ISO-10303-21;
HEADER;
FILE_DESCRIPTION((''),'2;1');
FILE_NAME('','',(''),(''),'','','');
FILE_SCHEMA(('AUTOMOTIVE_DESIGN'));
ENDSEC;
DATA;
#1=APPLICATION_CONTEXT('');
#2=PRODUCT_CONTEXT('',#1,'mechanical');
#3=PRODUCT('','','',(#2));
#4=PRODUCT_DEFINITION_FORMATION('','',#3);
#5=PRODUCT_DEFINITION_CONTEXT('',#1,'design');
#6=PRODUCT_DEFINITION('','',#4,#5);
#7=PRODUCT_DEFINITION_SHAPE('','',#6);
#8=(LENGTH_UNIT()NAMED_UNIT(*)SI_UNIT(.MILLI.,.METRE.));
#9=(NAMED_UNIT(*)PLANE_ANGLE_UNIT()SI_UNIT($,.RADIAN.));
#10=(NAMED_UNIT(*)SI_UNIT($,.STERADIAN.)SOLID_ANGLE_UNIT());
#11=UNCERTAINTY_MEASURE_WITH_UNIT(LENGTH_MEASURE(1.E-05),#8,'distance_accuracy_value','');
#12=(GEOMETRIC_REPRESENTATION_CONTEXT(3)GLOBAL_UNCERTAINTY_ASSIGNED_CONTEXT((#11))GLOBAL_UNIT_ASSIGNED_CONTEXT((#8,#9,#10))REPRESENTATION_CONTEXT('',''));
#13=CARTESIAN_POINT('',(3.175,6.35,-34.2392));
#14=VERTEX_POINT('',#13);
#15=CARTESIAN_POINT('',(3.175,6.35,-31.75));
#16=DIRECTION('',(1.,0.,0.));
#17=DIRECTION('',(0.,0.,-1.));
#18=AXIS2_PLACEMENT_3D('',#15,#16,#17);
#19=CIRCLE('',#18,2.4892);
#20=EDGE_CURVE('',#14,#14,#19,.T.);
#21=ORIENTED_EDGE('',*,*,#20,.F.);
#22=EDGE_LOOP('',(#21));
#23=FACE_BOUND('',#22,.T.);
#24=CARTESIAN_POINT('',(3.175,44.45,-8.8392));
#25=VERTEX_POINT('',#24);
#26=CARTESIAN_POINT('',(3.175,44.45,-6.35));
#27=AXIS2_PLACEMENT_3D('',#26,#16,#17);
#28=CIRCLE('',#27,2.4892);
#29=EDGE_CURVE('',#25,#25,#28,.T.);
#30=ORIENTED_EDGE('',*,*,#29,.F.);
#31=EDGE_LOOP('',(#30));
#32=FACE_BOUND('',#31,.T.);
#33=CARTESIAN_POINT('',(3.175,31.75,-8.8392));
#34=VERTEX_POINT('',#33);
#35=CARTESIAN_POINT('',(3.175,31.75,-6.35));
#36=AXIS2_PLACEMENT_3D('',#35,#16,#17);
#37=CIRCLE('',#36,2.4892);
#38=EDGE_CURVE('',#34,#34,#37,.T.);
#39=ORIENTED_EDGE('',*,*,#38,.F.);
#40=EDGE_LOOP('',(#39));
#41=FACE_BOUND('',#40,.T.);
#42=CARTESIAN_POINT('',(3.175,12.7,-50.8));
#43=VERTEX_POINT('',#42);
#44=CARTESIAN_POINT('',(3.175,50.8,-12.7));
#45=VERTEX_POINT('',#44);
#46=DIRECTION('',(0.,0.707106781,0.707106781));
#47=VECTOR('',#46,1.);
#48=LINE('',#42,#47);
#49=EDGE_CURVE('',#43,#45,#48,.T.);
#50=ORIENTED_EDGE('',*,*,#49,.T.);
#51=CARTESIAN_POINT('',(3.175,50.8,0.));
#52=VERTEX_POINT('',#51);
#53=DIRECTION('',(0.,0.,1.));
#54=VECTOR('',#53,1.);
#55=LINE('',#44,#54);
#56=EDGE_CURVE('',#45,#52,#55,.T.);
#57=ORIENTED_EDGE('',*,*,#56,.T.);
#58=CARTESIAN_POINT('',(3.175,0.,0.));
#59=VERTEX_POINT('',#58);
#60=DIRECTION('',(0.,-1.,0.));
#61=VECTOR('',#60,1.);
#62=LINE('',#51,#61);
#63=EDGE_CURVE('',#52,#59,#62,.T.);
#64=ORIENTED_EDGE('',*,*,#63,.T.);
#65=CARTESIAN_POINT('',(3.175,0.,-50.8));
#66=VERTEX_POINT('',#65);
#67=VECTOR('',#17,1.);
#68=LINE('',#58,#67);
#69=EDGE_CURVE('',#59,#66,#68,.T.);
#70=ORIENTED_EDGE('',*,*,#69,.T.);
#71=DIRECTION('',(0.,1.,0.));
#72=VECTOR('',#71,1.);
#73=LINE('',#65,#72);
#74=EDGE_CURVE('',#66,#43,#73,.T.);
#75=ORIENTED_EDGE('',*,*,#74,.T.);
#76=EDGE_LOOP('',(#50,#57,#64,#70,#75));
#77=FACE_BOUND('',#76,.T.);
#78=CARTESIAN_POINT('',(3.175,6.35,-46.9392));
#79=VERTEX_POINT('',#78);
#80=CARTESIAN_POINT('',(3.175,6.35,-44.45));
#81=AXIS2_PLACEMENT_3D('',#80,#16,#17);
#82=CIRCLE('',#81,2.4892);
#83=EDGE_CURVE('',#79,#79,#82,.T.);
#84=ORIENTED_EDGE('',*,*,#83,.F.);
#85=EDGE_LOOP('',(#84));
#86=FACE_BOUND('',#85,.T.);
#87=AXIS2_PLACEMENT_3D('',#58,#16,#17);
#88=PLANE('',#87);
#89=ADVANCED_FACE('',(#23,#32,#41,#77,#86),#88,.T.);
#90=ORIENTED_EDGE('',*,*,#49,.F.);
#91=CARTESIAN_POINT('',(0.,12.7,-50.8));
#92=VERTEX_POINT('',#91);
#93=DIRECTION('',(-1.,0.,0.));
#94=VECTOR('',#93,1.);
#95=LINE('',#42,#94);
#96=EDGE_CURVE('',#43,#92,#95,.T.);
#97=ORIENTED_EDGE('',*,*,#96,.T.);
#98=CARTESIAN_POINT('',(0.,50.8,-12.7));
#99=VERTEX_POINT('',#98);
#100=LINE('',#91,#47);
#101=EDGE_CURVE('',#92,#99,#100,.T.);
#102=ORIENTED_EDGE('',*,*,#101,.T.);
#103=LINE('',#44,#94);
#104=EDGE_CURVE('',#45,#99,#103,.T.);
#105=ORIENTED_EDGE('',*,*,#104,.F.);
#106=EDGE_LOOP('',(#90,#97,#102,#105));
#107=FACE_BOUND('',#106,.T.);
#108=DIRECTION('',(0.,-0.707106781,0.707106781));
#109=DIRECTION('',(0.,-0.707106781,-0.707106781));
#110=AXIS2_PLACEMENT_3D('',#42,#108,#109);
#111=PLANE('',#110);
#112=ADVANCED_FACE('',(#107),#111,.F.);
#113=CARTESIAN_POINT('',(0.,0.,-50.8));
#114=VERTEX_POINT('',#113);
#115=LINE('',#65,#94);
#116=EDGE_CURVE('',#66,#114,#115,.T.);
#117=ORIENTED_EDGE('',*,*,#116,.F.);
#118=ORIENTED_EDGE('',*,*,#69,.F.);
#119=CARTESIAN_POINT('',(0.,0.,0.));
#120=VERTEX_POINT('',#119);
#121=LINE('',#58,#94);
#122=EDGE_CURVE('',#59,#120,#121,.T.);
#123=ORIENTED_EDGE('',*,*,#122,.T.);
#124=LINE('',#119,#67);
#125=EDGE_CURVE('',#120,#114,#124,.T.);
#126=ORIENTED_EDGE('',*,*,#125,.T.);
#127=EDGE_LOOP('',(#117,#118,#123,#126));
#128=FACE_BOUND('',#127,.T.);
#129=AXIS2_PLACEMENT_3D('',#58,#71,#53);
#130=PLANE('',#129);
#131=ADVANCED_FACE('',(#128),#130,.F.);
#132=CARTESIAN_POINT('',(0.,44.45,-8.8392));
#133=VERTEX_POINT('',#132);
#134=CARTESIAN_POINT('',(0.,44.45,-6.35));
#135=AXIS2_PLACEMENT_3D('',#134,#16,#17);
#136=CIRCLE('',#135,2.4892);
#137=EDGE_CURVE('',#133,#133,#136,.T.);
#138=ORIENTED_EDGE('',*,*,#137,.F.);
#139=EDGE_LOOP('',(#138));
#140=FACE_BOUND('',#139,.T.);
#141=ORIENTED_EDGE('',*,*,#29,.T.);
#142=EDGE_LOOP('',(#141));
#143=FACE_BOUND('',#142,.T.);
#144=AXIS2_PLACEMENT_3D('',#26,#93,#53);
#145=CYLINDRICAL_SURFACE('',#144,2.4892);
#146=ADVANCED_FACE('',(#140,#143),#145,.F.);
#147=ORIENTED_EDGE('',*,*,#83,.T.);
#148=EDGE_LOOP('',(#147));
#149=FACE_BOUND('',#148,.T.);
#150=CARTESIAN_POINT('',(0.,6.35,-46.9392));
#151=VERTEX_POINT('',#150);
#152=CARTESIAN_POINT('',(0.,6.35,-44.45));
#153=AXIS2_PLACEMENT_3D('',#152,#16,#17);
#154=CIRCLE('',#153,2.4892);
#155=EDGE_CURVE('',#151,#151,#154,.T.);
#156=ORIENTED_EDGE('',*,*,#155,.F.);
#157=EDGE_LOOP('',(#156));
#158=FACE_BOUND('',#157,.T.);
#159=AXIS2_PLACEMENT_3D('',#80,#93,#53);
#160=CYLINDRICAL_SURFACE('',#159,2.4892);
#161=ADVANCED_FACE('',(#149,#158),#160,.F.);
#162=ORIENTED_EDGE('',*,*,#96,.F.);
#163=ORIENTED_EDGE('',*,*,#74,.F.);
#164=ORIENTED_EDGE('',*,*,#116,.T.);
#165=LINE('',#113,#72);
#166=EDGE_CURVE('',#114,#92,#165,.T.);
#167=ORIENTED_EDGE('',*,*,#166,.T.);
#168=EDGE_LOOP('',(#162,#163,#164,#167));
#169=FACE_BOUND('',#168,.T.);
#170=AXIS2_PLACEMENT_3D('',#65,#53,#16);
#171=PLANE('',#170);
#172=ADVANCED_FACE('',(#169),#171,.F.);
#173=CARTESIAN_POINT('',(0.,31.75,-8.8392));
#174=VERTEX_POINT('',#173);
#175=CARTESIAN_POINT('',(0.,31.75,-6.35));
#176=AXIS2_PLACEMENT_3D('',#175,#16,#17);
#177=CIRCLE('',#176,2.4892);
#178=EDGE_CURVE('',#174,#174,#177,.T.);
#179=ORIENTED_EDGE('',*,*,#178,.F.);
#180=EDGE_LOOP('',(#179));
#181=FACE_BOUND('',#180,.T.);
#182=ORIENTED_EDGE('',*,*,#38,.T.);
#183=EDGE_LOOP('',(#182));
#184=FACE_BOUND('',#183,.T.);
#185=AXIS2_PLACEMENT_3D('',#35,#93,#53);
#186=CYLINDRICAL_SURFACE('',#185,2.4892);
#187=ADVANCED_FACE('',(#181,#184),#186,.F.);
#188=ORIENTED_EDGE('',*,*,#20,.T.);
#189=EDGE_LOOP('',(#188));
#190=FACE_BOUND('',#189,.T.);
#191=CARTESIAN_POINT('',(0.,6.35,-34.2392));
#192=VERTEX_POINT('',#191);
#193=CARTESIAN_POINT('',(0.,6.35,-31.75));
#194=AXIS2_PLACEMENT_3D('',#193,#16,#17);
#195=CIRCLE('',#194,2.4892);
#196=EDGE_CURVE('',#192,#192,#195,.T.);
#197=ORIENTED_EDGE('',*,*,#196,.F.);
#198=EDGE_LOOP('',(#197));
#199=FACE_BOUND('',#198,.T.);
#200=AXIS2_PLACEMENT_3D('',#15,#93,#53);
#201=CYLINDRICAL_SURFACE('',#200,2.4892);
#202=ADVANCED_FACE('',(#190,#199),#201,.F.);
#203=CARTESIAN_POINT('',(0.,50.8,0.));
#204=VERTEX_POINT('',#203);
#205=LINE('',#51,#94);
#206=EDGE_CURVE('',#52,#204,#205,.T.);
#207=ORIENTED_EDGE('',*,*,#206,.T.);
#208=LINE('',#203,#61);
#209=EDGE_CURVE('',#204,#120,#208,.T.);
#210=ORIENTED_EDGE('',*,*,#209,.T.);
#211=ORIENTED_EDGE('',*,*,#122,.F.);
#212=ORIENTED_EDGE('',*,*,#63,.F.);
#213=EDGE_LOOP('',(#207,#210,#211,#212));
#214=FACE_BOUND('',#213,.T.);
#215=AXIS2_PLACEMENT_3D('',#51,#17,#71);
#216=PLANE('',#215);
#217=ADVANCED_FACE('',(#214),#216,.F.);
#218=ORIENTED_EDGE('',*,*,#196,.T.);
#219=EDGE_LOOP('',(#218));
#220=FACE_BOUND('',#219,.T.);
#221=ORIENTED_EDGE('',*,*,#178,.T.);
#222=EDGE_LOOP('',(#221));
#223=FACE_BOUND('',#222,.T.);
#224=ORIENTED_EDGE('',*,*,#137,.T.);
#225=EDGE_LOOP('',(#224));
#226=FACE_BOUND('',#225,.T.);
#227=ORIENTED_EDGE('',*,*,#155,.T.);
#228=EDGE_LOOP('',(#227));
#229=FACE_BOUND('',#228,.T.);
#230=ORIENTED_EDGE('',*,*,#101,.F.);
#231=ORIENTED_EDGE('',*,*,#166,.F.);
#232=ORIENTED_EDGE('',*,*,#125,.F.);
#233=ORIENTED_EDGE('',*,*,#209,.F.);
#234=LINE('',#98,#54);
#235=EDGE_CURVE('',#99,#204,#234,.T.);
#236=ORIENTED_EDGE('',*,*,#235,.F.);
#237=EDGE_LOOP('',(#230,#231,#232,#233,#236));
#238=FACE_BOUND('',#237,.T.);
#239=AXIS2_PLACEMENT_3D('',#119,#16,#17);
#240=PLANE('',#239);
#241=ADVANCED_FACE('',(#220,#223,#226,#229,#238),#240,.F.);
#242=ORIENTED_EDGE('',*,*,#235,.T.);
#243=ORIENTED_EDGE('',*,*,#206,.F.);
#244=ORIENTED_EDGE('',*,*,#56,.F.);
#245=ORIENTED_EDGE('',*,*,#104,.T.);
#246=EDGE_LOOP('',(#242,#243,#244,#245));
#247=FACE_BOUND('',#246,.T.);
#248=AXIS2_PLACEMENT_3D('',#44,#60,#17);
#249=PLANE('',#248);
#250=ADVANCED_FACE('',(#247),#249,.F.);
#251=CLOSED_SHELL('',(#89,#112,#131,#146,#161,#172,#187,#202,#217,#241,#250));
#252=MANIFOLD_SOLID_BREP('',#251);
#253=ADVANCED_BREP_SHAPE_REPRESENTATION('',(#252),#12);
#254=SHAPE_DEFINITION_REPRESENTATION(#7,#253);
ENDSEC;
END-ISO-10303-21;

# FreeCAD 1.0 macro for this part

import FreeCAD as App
import Part
import Sketcher
from FreeCAD import Vector
Q = App.Units.Quantity


def add_polygon(sketch, points):
    """Adds a closed chain of lines whose ends are joined by coincident constraints."""
    first, n = sketch.GeometryCount, len(points)
    for a, b in zip(points, points[1:] + points[:1]):
        sketch.addGeometry(Part.LineSegment(App.Vector(*a, 0), App.Vector(*b, 0)), False)
    for i in range(n):
        sketch.addConstraint(Sketcher.Constraint("Coincident", first + i, 2, first + (i + 1) % n, 1))

doc = App.newDocument("Part")
params = doc.addObject("Spreadsheet::Sheet", "Params")
for row, (alias, value) in enumerate([
    ("sketch1_width", "2 in"),
    ("sketch1_diameter", "0.196 in"),
    ("sketch1_width2", "0.5 in"),
    ("pad1_length", "0.125 in"),
], start=1):
    params.set(f"A{row}", alias)
    params.set(f"B{row}", "=" + value)
    params.setAlias(f"B{row}", alias)

body = doc.addObject("PartDesign::Body", "Body")

# Sketch on YZ plane
sketch1 = body.newObject("Sketcher::SketchObject", "Sketch")
sketch1.AttachmentSupport = (doc.getObject("YZ_Plane"), [""])
sketch1.MapMode = "FlatFace"
add_polygon(sketch1, [(0, 0), (0, -50.8), (12.7, -50.8), (50.8, -12.7), (50.8, 0)])  # lines 0-4
sketch1.addGeometry(Part.Circle(Vector(6.3, -31.8, 0), Vector(0, 0, 1), 2.5), False)  # 5
sketch1.addGeometry(Part.Circle(Vector(6.3, -44.5, 0), Vector(0, 0, 1), 2.5), False)  # 6
sketch1.addGeometry(Part.Circle(Vector(31.8, -6.3, 0), Vector(0, 0, 1), 2.5), False)  # 7
sketch1.addGeometry(Part.Circle(Vector(44.5, -6.3, 0), Vector(0, 0, 1), 2.5), False)  # 8
sketch1.addConstraint([
    Sketcher.Constraint("Vertical", 0),
    Sketcher.Constraint("Horizontal", 1),
    Sketcher.Constraint("Vertical", 3),
    Sketcher.Constraint("Horizontal", 4),
    Sketcher.Constraint("Coincident", 4, 2, -1, 1),
    Sketcher.Constraint("Equal", 5, 6),
    Sketcher.Constraint("Equal", 6, 7),
    Sketcher.Constraint("Equal", 7, 8),
    Sketcher.Constraint("Horizontal", 7, 3, 8, 3),
    Sketcher.Constraint("Vertical", 5, 3, 6, 3),
    Sketcher.Constraint("Equal", 4, 0),
    Sketcher.Constraint("Equal", 1, 3),
    Sketcher.Constraint("DistanceX", 4, 2, 4, 1, Q("2 in")),
    Sketcher.Constraint("Diameter", 5, Q("0.196 in")),
    Sketcher.Constraint("DistanceX", 1, 1, 1, 2, Q("0.5 in")),
    Sketcher.Constraint("DistanceX", 5, 3, 7, 3, Q("1 in")),
    Sketcher.Constraint("DistanceY", 5, 3, 7, 3, Q("1 in")),
    Sketcher.Constraint("DistanceY", 6, 3, 5, 3, Q("0.5 in")),
    Sketcher.Constraint("DistanceX", 7, 3, 8, 3, Q("0.5 in")),
    Sketcher.Constraint("DistanceX", -1, 1, 5, 3, Q("0.25 in")),
    Sketcher.Constraint("DistanceY", 5, 3, -1, 1, Q("1.25 in")),
])
sketch1.setExpression("Constraints[17]", "Params.sketch1_width")
sketch1.setExpression("Constraints[18]", "Params.sketch1_diameter")
sketch1.setExpression("Constraints[19]", "Params.sketch1_width2")
pad1 = body.newObject("PartDesign::Pad", "Pad")
pad1.Profile = sketch1
pad1.setExpression("Length", "Params.pad1_length")

doc.recompute()
